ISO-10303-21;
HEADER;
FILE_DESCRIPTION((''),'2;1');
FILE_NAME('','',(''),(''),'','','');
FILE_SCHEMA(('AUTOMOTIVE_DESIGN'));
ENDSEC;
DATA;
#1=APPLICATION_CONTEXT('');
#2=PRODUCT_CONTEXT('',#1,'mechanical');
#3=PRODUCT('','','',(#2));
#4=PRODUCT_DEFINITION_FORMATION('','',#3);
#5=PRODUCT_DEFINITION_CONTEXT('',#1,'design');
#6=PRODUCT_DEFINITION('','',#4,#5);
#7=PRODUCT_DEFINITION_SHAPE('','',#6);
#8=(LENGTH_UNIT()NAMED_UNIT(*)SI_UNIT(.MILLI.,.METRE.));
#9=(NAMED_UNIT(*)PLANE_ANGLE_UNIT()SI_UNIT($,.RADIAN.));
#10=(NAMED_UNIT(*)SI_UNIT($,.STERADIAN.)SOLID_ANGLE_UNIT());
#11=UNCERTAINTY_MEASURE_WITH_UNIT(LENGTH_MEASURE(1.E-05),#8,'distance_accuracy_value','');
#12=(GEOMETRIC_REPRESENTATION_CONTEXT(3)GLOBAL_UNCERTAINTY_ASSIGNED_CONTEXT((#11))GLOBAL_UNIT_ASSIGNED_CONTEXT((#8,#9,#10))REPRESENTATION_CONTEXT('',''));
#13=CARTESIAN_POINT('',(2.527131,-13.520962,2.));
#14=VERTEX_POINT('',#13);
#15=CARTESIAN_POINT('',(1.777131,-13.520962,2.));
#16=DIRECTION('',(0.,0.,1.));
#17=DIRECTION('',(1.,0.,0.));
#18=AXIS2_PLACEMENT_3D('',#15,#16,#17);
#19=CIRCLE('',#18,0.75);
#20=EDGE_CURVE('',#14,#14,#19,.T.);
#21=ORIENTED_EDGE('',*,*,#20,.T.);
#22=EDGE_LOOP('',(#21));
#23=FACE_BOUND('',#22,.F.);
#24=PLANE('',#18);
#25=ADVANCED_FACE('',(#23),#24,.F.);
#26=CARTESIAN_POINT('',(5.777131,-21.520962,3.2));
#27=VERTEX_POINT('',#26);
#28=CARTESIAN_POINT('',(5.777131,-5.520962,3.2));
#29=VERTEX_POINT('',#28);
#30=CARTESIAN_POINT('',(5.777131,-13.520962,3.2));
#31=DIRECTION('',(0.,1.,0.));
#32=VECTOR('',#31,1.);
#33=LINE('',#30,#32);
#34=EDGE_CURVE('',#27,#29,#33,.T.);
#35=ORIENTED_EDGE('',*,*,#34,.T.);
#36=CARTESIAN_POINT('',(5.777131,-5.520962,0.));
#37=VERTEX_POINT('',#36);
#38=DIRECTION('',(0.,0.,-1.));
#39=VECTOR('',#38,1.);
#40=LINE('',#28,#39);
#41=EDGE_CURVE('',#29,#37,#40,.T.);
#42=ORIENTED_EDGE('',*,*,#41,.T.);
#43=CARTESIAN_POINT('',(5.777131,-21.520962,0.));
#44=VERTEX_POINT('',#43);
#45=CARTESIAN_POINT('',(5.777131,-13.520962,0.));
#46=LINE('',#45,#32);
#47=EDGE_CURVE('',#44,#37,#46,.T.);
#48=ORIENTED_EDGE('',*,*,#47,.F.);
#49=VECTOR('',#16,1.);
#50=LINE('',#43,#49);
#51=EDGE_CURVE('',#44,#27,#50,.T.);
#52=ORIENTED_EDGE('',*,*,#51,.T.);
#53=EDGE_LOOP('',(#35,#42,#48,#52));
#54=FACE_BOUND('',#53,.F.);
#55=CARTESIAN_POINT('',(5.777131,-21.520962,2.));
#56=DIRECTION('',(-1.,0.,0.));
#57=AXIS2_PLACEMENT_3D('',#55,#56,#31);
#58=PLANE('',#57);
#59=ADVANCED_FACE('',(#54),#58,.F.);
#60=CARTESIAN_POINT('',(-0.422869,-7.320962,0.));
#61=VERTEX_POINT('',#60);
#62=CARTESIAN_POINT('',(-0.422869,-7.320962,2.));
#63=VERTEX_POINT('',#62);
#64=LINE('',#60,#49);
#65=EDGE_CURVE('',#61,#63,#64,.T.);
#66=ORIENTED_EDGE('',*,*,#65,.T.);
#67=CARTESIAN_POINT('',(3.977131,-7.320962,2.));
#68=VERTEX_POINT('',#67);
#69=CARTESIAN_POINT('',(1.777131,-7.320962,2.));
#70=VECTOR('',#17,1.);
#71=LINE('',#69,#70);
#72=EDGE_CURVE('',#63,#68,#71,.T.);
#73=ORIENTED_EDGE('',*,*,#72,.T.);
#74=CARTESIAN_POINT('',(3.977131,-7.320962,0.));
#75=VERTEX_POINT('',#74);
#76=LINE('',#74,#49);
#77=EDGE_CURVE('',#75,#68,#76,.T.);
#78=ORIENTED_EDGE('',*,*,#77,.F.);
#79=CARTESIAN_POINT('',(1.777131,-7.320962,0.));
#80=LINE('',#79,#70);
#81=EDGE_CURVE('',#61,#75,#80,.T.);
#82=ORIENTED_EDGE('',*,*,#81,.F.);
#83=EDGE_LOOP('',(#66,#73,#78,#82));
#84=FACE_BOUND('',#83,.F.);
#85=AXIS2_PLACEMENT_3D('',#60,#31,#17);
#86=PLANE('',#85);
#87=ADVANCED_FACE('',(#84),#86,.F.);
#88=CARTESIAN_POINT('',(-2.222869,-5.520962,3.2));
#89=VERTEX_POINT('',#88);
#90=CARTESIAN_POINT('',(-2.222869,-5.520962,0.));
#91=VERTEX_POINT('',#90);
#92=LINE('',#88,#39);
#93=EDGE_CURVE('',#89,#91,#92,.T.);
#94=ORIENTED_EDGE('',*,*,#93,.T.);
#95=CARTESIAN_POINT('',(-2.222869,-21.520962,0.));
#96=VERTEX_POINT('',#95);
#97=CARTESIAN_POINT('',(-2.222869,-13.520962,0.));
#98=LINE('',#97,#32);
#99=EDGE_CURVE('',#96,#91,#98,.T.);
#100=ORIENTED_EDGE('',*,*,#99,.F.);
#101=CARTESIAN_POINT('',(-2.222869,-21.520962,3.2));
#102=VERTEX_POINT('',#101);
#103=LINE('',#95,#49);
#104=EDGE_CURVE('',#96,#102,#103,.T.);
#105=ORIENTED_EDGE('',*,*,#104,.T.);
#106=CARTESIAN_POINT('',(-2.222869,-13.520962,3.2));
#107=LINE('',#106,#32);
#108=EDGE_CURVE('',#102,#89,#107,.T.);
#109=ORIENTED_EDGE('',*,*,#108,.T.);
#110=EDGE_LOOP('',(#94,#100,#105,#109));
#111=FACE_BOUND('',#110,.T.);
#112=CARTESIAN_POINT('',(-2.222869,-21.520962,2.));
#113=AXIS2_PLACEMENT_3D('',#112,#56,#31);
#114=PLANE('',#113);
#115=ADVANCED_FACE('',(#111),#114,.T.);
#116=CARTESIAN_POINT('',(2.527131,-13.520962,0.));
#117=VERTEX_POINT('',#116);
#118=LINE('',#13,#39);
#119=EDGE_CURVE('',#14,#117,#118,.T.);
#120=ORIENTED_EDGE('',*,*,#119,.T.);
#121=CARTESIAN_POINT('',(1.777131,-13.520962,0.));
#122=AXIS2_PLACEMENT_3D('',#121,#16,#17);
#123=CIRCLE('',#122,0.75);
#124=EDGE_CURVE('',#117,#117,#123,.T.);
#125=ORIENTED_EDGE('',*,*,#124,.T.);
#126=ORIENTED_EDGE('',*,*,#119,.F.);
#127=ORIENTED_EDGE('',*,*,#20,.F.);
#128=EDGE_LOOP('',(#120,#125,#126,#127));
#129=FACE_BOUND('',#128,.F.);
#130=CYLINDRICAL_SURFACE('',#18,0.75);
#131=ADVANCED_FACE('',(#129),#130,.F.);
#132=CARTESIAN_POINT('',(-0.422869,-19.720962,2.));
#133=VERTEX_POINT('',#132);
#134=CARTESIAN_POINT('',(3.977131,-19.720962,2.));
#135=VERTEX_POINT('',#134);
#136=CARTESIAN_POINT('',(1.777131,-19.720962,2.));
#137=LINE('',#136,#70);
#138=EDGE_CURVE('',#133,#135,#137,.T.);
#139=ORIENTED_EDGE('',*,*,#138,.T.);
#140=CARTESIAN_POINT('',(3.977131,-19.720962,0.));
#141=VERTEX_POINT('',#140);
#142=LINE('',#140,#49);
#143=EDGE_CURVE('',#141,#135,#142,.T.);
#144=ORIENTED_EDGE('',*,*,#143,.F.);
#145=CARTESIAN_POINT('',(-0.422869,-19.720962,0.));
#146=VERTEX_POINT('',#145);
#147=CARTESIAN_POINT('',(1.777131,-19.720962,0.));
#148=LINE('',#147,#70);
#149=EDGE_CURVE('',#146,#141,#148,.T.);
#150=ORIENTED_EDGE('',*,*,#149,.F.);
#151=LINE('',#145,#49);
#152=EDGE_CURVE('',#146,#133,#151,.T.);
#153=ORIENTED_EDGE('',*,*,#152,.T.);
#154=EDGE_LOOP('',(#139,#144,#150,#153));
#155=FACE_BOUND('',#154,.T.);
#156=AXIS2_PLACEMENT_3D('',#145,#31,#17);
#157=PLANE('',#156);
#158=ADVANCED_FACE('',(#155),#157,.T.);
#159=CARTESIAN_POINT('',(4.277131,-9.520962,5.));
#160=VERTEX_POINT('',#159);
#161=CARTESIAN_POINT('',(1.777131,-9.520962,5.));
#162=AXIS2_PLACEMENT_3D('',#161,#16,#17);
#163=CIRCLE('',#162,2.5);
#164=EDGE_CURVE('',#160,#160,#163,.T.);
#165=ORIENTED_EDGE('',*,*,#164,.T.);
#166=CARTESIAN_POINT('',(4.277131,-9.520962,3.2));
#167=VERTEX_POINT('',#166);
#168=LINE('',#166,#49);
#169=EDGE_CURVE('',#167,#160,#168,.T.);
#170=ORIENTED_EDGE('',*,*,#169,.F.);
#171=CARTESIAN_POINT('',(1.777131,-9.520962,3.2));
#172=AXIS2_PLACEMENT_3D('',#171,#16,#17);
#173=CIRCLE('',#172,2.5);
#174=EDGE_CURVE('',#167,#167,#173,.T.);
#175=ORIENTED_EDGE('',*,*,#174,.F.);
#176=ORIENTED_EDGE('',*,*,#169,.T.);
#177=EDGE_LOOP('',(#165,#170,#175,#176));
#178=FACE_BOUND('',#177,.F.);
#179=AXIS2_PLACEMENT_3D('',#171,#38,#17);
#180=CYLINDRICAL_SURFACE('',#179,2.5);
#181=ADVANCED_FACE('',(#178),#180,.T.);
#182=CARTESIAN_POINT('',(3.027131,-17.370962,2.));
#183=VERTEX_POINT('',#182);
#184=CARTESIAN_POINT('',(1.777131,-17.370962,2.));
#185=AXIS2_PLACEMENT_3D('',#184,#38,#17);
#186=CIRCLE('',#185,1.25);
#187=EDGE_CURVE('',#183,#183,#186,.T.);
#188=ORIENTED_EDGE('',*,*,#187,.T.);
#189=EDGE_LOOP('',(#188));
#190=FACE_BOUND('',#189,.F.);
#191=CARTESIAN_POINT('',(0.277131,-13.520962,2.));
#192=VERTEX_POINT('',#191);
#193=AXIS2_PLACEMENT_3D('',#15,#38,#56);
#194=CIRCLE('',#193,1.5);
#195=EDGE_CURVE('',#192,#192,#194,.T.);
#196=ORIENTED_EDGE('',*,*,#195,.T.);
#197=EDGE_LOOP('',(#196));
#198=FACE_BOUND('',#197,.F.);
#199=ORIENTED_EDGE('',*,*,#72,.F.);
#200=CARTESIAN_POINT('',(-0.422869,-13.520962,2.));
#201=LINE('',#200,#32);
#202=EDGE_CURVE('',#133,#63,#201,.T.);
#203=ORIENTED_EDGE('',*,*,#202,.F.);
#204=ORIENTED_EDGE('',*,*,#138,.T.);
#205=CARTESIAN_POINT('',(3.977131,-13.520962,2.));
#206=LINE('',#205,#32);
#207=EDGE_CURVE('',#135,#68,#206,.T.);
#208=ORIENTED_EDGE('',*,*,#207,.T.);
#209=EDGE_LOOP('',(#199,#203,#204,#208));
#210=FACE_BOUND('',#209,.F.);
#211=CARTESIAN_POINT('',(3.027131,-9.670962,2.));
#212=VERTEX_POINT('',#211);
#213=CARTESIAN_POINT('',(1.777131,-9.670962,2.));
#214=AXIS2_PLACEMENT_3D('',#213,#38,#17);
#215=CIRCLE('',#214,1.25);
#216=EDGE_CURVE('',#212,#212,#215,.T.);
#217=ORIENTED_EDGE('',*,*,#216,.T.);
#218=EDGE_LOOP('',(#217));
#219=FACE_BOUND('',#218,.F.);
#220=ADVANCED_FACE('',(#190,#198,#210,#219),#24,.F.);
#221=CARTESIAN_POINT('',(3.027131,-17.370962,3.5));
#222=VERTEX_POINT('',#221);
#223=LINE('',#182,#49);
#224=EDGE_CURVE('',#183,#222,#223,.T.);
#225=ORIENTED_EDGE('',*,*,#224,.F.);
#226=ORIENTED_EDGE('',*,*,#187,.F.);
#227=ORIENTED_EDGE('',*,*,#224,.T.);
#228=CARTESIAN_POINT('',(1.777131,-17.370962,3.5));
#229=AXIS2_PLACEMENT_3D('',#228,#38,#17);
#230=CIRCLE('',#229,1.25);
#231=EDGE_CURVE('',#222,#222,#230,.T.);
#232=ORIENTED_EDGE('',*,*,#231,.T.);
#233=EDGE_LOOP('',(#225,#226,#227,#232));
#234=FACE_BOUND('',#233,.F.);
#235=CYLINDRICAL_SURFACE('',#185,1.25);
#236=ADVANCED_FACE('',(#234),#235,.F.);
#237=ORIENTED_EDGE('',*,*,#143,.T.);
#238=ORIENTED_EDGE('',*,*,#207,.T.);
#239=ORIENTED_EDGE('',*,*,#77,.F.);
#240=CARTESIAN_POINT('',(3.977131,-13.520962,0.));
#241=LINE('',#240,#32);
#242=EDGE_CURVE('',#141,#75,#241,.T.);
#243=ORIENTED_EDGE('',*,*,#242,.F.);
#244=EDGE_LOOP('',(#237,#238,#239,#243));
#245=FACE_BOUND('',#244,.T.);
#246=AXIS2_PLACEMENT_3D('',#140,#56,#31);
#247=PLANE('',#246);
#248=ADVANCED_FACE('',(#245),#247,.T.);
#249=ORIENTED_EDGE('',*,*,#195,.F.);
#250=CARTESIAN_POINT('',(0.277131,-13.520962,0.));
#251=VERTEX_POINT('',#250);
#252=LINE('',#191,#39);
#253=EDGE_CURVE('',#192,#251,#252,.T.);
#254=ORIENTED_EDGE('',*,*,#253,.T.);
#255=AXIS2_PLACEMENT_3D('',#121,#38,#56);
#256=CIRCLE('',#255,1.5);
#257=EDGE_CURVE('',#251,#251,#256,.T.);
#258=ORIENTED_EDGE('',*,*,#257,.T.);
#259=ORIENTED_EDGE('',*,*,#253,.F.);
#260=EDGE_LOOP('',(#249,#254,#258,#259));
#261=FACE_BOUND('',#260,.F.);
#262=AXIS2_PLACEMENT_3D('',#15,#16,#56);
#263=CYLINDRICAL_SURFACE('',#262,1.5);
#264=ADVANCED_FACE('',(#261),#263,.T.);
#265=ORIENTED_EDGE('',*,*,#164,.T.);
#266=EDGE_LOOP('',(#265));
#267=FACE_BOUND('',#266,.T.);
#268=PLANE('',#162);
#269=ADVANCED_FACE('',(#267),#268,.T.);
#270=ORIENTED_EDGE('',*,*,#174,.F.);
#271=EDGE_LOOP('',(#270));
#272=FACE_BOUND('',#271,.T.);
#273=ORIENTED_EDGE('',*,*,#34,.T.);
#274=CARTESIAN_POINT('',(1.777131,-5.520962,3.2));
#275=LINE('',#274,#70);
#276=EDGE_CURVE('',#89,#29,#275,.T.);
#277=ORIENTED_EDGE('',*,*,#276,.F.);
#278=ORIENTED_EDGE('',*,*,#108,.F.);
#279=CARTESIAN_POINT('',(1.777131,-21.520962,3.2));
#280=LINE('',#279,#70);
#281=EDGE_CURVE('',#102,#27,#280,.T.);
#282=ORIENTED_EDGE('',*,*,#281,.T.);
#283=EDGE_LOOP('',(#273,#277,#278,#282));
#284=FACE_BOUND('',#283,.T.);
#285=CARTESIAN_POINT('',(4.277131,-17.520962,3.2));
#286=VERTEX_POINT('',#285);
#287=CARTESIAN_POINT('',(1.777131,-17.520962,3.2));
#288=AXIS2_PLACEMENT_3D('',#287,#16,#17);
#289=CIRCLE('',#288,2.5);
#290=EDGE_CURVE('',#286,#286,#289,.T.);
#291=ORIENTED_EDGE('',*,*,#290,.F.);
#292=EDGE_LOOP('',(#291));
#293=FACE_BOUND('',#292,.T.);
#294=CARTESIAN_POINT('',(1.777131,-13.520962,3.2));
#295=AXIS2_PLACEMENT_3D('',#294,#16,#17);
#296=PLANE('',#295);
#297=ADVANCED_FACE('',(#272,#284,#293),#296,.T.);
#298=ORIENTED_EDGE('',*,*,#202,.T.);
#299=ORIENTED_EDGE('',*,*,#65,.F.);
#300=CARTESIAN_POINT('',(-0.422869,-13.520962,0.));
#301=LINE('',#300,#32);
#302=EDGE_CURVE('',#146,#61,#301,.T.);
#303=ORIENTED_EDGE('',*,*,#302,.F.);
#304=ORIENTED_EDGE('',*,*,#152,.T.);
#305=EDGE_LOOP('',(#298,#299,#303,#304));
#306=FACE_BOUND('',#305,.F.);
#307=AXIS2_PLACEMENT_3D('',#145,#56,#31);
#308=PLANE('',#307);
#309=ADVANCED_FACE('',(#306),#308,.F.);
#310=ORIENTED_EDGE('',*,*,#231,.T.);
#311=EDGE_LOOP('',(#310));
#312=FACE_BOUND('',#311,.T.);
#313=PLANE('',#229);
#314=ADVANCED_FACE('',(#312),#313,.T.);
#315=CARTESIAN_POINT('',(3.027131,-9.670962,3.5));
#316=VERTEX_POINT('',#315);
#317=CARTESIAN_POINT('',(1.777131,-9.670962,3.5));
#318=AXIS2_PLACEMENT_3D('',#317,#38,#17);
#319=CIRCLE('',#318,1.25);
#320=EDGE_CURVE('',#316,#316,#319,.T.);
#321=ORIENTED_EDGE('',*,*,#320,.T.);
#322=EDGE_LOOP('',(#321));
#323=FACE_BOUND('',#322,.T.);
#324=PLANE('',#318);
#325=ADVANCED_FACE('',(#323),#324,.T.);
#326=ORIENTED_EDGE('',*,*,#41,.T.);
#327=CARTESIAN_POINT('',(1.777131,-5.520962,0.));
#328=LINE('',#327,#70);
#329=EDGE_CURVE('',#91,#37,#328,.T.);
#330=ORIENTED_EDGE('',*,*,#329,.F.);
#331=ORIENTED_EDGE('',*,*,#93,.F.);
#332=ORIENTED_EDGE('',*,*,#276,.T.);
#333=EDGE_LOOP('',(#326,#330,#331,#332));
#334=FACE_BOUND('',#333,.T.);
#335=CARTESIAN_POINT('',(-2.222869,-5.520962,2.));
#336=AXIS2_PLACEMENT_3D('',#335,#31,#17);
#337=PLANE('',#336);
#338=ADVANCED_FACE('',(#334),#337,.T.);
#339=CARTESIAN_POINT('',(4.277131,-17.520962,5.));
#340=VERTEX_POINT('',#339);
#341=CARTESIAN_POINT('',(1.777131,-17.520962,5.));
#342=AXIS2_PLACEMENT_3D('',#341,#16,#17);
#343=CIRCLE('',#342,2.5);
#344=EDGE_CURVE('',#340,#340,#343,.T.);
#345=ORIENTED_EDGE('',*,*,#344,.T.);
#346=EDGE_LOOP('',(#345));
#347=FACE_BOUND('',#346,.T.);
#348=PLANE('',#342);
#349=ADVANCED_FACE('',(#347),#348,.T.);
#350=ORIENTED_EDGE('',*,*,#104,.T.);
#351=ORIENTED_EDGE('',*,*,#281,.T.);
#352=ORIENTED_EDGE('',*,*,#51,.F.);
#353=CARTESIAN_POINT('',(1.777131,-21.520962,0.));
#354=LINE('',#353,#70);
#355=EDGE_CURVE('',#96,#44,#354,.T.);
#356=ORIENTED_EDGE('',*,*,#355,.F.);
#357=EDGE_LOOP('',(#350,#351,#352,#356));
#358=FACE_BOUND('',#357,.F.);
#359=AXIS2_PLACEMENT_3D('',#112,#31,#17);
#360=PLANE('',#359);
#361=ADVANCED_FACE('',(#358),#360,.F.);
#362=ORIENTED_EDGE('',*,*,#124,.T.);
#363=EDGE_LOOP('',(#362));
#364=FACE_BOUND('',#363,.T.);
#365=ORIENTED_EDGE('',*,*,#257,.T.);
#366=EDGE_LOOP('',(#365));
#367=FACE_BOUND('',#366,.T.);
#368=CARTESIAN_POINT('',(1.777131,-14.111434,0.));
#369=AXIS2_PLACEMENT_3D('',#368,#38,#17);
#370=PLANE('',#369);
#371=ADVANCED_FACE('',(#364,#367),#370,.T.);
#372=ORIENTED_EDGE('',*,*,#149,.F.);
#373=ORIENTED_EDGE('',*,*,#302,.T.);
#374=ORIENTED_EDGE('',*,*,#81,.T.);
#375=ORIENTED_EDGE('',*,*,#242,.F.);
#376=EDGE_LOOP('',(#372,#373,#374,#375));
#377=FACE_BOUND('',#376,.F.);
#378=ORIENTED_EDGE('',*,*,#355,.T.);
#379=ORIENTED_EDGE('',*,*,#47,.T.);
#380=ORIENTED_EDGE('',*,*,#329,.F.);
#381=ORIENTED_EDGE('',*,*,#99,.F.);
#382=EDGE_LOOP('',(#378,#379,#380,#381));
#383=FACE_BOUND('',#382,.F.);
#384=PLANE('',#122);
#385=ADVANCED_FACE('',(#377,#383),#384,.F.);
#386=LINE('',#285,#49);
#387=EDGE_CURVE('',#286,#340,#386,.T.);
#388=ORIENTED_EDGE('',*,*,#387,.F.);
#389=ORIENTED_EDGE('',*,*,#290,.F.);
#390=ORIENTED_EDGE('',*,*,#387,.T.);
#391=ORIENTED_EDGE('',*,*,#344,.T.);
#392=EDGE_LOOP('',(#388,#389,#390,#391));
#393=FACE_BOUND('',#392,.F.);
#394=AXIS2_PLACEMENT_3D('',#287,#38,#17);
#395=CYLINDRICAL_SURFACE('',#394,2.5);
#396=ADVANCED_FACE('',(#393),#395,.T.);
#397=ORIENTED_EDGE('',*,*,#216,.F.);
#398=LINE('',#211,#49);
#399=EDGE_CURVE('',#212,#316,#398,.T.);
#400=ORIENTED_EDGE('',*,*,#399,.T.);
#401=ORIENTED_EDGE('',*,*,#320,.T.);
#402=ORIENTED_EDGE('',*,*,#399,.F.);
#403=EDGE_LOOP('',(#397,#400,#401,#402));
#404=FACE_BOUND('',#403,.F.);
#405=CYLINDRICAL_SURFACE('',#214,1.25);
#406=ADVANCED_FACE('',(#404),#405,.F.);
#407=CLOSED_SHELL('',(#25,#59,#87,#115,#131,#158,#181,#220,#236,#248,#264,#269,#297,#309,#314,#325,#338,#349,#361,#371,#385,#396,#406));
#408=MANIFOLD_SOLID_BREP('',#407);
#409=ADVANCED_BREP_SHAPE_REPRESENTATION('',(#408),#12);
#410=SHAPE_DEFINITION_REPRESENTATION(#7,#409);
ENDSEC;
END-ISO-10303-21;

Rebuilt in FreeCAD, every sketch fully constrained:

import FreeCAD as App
import Part
import Sketcher
from FreeCAD import Vector


def add_polygon(sketch, points):
    """Adds a closed chain of lines whose ends are joined by coincident constraints."""
    first, n = sketch.GeometryCount, len(points)
    for a, b in zip(points, points[1:] + points[:1]):
        sketch.addGeometry(Part.LineSegment(App.Vector(*a, 0), App.Vector(*b, 0)), False)
    for i in range(n):
        sketch.addConstraint(Sketcher.Constraint("Coincident", first + i, 2, first + (i + 1) % n, 1))

doc = App.newDocument("Part")
body = doc.addObject("PartDesign::Body", "Body")

# Sketch on XY plane
sketch1 = body.newObject("Sketcher::SketchObject", "Sketch")
sketch1.AttachmentSupport = (doc.getObject("XY_Plane"), [""])
sketch1.MapMode = "FlatFace"
add_polygon(sketch1, [(-2.2, -5.5), (-2.2, -21.5), (5.8, -21.5), (5.8, -5.5)])  # lines 0-3
add_polygon(sketch1, [(4, -19.7), (-0.4, -19.7), (-0.4, -7.3), (4, -7.3)])  # lines 4-7
sketch1.addConstraint(Sketcher.Constraint("Vertical", 0))
sketch1.addConstraint(Sketcher.Constraint("Horizontal", 1))
sketch1.addConstraint(Sketcher.Constraint("Vertical", 2))
sketch1.addConstraint(Sketcher.Constraint("Horizontal", 3))
sketch1.addConstraint(Sketcher.Constraint("Horizontal", 4))
sketch1.addConstraint(Sketcher.Constraint("Vertical", 5))
sketch1.addConstraint(Sketcher.Constraint("Horizontal", 6))
sketch1.addConstraint(Sketcher.Constraint("Vertical", 7))
sketch1.addConstraint(Sketcher.Constraint("DistanceX", 1, 1, 1, 2, 8.0))
sketch1.addConstraint(Sketcher.Constraint("DistanceY", 0, 2, 0, 1, 16.0))
sketch1.addConstraint(Sketcher.Constraint("DistanceX", 4, 2, 4, 1, 4.4))
sketch1.addConstraint(Sketcher.Constraint("DistanceY", 5, 1, 5, 2, 12.4))
sketch1.addConstraint(Sketcher.Constraint("DistanceX", 0, 2, 4, 2, 1.8))
sketch1.addConstraint(Sketcher.Constraint("DistanceY", 0, 2, 4, 2, 1.8))
sketch1.addConstraint(Sketcher.Constraint("DistanceX", 0, 2, -1, 1, 2.222869))
sketch1.addConstraint(Sketcher.Constraint("DistanceY", 4, 2, -1, 1, 19.720962))
pad1 = body.newObject("PartDesign::Pad", "Pad")
pad1.Profile = sketch1
pad1.Length = 2

# Sketch on XY plane
sketch2 = body.newObject("Sketcher::SketchObject", "Sketch001")
sketch2.AttachmentSupport = (doc.getObject("XY_Plane"), [""])
sketch2.MapMode = "FlatFace"
sketch2.AttachmentOffset = App.Placement(Vector(0, 0, 2), App.Rotation())
add_polygon(sketch2, [(-2, -6), (-2, -22), (6, -22), (6, -6)])  # lines 0-3
sketch2.addConstraint(Sketcher.Constraint("Vertical", 0))
sketch2.addConstraint(Sketcher.Constraint("Horizontal", 1))
sketch2.addConstraint(Sketcher.Constraint("Vertical", 2))
sketch2.addConstraint(Sketcher.Constraint("Horizontal", 3))
sketch2.addConstraint(Sketcher.Constraint("DistanceX", 1, 1, 1, 2, 8.0))
sketch2.addConstraint(Sketcher.Constraint("DistanceY", 0, 2, 0, 1, 16.0))
sketch2.addConstraint(Sketcher.Constraint("DistanceX", 0, 2, -1, 1, 2.222869))
sketch2.addConstraint(Sketcher.Constraint("DistanceY", 0, 2, -1, 1, 21.520962))
pad2 = body.newObject("PartDesign::Pad", "Pad001")
pad2.Profile = sketch2
pad2.Length = 1.2

# Sketch on XY plane
sketch3 = body.newObject("Sketcher::SketchObject", "Sketch002")
sketch3.AttachmentSupport = (doc.getObject("XY_Plane"), [""])
sketch3.MapMode = "FlatFace"
sketch3.AttachmentOffset = App.Placement(Vector(0, 0, 3.2), App.Rotation())
sketch3.addGeometry(Part.Circle(Vector(1.8, -9.5, 0), Vector(0, 0, 1), 2.5), False)
sketch3.addGeometry(Part.Circle(Vector(1.8, -17.5, 0), Vector(0, 0, 1), 2.5), False)
sketch3.addConstraint(Sketcher.Constraint("Equal", 0, 1))
sketch3.addConstraint(Sketcher.Constraint("Vertical", 0, 3, 1, 3))
sketch3.addConstraint(Sketcher.Constraint("Diameter", 0, 5.0))
sketch3.addConstraint(Sketcher.Constraint("DistanceY", 1, 3, 0, 3, 8.0))
sketch3.addConstraint(Sketcher.Constraint("DistanceX", -1, 1, 0, 3, 1.777131))
sketch3.addConstraint(Sketcher.Constraint("DistanceY", 0, 3, -1, 1, 9.520962))
pad3 = body.newObject("PartDesign::Pad", "Pad002")
pad3.Profile = sketch3
pad3.Length = 1.8

# Sketch on XY plane
sketch4 = body.newObject("Sketcher::SketchObject", "Sketch003")
sketch4.AttachmentSupport = (doc.getObject("XY_Plane"), [""])
sketch4.MapMode = "FlatFace"
sketch4.AttachmentOffset = App.Placement(Vector(0, 0, 2), App.Rotation())
sketch4.addGeometry(Part.Circle(Vector(1.8, -13.5, 0), Vector(0, 0, 1), 1.5), False)
sketch4.addGeometry(Part.Circle(Vector(1.8, -13.5, 0), Vector(0, 0, 1), 0.8), False)
sketch4.addConstraint(Sketcher.Constraint("Coincident", 1, 3, 0, 3))
sketch4.addConstraint(Sketcher.Constraint("Diameter", 0, 3.0))
sketch4.addConstraint(Sketcher.Constraint("Diameter", 1, 1.5))
sketch4.addConstraint(Sketcher.Constraint("DistanceX", -1, 1, 0, 3, 1.777131))
sketch4.addConstraint(Sketcher.Constraint("DistanceY", 0, 3, -1, 1, 13.520962))
pad4 = body.newObject("PartDesign::Pad", "Pad003")
pad4.Profile = sketch4
pad4.Length = 2
pad4.Reversed = True

# Sketch on XY plane
sketch5 = body.newObject("Sketcher::SketchObject", "Sketch004")
sketch5.AttachmentSupport = (doc.getObject("XY_Plane"), [""])
sketch5.MapMode = "FlatFace"
sketch5.AttachmentOffset = App.Placement(Vector(0, 0, 2), App.Rotation())
sketch5.addGeometry(Part.Circle(Vector(1.8, -17.4, 0), Vector(0, 0, 1), 1.2), False)
sketch5.addGeometry(Part.Circle(Vector(1.8, -9.7, 0), Vector(0, 0, 1), 1.2), False)
sketch5.addConstraint(Sketcher.Constraint("Equal", 0, 1))
sketch5.addConstraint(Sketcher.Constraint("Vertical", 0, 3, 1, 3))
sketch5.addConstraint(Sketcher.Constraint("Diameter", 0, 2.5))
sketch5.addConstraint(Sketcher.Constraint("DistanceY", 0, 3, 1, 3, 7.7))
sketch5.addConstraint(Sketcher.Constraint("DistanceX", -1, 1, 0, 3, 1.777131))
sketch5.addConstraint(Sketcher.Constraint("DistanceY", 0, 3, -1, 1, 17.370962))
pocket1 = body.newObject("PartDesign::Pocket", "Pocket")
pocket1.Profile = sketch5
pocket1.Length = 1.5
pocket1.Reversed = True

doc.recompute()
